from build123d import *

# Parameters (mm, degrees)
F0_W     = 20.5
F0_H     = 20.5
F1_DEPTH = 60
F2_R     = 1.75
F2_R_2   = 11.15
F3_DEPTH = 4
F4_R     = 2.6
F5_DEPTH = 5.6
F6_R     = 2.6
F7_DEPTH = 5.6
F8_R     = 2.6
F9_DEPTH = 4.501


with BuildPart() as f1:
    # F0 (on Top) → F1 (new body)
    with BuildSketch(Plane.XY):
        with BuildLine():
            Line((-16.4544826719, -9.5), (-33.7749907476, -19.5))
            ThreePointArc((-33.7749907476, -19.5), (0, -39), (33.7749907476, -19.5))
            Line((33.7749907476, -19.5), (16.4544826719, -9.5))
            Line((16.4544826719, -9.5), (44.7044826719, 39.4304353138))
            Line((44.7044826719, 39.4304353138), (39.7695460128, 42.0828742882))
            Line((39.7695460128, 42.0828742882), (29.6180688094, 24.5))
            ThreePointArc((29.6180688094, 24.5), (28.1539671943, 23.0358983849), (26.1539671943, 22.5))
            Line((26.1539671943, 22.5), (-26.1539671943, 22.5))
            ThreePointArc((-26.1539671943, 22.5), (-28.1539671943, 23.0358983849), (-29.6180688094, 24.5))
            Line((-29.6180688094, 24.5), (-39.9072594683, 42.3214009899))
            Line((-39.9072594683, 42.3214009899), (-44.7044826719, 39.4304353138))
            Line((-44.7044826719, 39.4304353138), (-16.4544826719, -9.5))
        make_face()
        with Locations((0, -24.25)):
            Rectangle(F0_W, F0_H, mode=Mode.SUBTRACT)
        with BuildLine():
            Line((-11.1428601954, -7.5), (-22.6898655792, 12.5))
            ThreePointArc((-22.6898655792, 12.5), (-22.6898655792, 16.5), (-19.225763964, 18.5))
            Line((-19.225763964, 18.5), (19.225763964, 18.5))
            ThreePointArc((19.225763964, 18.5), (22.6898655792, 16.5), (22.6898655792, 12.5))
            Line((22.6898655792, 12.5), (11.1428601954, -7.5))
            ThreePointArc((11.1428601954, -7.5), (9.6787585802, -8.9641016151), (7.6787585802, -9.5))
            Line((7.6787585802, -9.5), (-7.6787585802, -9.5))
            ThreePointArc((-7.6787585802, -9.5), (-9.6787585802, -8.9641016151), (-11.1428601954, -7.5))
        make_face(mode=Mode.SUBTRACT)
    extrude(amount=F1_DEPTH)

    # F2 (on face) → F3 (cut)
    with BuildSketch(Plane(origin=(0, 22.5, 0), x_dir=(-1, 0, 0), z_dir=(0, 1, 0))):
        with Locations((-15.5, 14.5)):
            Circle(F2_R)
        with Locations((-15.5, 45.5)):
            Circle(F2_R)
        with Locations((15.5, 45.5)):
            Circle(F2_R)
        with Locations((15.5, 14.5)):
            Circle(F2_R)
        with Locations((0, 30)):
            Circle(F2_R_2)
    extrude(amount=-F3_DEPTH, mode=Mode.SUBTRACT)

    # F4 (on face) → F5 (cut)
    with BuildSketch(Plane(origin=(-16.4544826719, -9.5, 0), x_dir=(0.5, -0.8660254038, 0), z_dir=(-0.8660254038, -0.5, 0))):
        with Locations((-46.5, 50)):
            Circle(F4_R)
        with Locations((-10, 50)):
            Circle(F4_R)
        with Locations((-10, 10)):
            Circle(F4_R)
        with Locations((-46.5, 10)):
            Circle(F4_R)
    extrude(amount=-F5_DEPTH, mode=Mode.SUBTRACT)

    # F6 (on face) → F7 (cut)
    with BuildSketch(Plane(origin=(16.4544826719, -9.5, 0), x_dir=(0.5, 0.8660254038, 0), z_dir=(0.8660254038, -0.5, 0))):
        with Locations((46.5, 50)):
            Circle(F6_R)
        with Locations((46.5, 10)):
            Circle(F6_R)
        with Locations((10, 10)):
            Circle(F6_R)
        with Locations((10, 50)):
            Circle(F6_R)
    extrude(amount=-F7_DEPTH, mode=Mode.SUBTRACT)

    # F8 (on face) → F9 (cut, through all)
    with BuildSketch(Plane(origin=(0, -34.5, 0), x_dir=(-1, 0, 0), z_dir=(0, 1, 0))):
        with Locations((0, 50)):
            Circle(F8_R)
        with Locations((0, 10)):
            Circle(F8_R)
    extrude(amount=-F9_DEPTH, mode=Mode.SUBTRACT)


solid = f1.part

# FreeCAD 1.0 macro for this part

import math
import FreeCAD as App
import Part
import Sketcher
from FreeCAD import Vector
Q = App.Units.Quantity


def add_polygon(sketch, points):
    """Adds a closed chain of lines whose ends are joined by coincident constraints."""
    first, n = sketch.GeometryCount, len(points)
    for a, b in zip(points, points[1:] + points[:1]):
        sketch.addGeometry(Part.LineSegment(App.Vector(*a, 0), App.Vector(*b, 0)), False)
    for i in range(n):
        sketch.addConstraint(Sketcher.Constraint("Coincident", first + i, 2, first + (i + 1) % n, 1))

doc = App.newDocument("Part")
params = doc.addObject("Spreadsheet::Sheet", "Params")
for row, (alias, value) in enumerate([
    ("sketch1_radius", "39 mm"),
    ("sketch1_radius2", "4 mm"),
    ("sketch1_length", "20 mm"),
    ("sketch1_width", "20.5 mm"),
    ("sketch1_length2", "56.5 mm"),
    ("pad1_length", "60 mm"),
    ("sketch2_diameter", "3.5 mm"),
    ("sketch2_diameter2", "22.3 mm"),
    ("pocket1_length", "4 mm"),
    ("sketch3_diameter", "5.2 mm"),
    ("pocket2_length", "5.6 mm"),
    ("sketch4_diameter", "5.2 mm"),
    ("pocket3_length", "5.6 mm"),
    ("sketch5_diameter", "5.2 mm"),
], start=1):
    params.set(f"A{row}", alias)
    params.set(f"B{row}", "=" + value)
    params.setAlias(f"B{row}", alias)

body = doc.addObject("PartDesign::Body", "Body")

sketch1 = doc.addObject("Sketcher::SketchObject", "Sketch")
body.addObject(sketch1)
sketch1.AttachmentSupport = (doc.XY_Plane, [""])
sketch1.MapMode = "FlatFace"
sketch1.addGeometry(Part.LineSegment(Vector(-16.5, -9.5, 0), Vector(-33.8, -19.5, 0)), False)
sketch1.addGeometry(Part.ArcOfCircle(Part.Circle(Vector(0, 0, 0), Vector(0, 0, 1), 39), math.radians(-150), math.radians(-30)), False)
sketch1.addGeometry(Part.LineSegment(Vector(33.8, -19.5, 0), Vector(16.5, -9.5, 0)), False)
sketch1.addGeometry(Part.LineSegment(Vector(16.5, -9.5, 0), Vector(44.7, 39.4, 0)), False)
sketch1.addGeometry(Part.LineSegment(Vector(44.7, 39.4, 0), Vector(39.8, 42.1, 0)), False)
sketch1.addGeometry(Part.LineSegment(Vector(39.8, 42.1, 0), Vector(29.6, 24.5, 0)), False)
sketch1.addGeometry(Part.ArcOfCircle(Part.Circle(Vector(26.2, 26.5, 0), Vector(0, 0, 1), 4), math.radians(-90), math.radians(-30)), False)
sketch1.addGeometry(Part.LineSegment(Vector(26.2, 22.5, 0), Vector(-26.2, 22.5, 0)), False)
sketch1.addGeometry(Part.ArcOfCircle(Part.Circle(Vector(-26.2, 26.5, 0), Vector(0, 0, 1), 4), math.radians(-150), math.radians(-90)), False)
sketch1.addGeometry(Part.LineSegment(Vector(-29.6, 24.5, 0), Vector(-39.9, 42.3, 0)), False)
sketch1.addGeometry(Part.LineSegment(Vector(-39.9, 42.3, 0), Vector(-44.7, 39.4, 0)), False)
sketch1.addGeometry(Part.LineSegment(Vector(-44.7, 39.4, 0), Vector(-16.5, -9.5, 0)), False)
add_polygon(sketch1, [(10.2, -34.5), (-10.2, -34.5), (-10.2, -14), (10.2, -14)])
sketch1.addGeometry(Part.ArcOfCircle(Part.Circle(Vector(-7.7, -5.5, 0), Vector(0, 0, 1), 4), math.radians(-150), math.radians(-90)), False)
sketch1.addGeometry(Part.LineSegment(Vector(-11.1, -7.5, 0), Vector(-22.7, 12.5, 0)), False)
sketch1.addGeometry(Part.ArcOfCircle(Part.Circle(Vector(-19.2, 14.5, 0), Vector(0, 0, 1), 4), math.radians(90), math.radians(210)), False)
sketch1.addGeometry(Part.LineSegment(Vector(-19.2, 18.5, 0), Vector(19.2, 18.5, 0)), False)
sketch1.addGeometry(Part.ArcOfCircle(Part.Circle(Vector(19.2, 14.5, 0), Vector(0, 0, 1), 4), math.radians(-30), math.radians(90)), False)
sketch1.addGeometry(Part.LineSegment(Vector(22.7, 12.5, 0), Vector(11.1, -7.5, 0)), False)
sketch1.addGeometry(Part.ArcOfCircle(Part.Circle(Vector(7.7, -5.5, 0), Vector(0, 0, 1), 4), math.radians(-90), math.radians(-30)), False)
sketch1.addGeometry(Part.LineSegment(Vector(7.7, -9.5, 0), Vector(-7.7, -9.5, 0)), False)
sketch1.addConstraint([
    Sketcher.Constraint("Coincident", 0, 2, 1, 1),
    Sketcher.Constraint("Coincident", 1, 2, 2, 1),
    Sketcher.Constraint("Coincident", 2, 2, 3, 1),
    Sketcher.Constraint("Coincident", 3, 2, 4, 1),
    Sketcher.Constraint("Coincident", 4, 2, 5, 1),
    Sketcher.Constraint("Tangent", 5, 2, 6, 2),
    Sketcher.Constraint("Tangent", 6, 1, 7, 1),
    Sketcher.Constraint("Tangent", 7, 2, 8, 2),
    Sketcher.Constraint("Tangent", 8, 1, 9, 1),
    Sketcher.Constraint("Coincident", 9, 2, 10, 1),
    Sketcher.Constraint("Coincident", 10, 2, 11, 1),
    Sketcher.Constraint("Coincident", 11, 2, 0, 1),
    Sketcher.Constraint("Tangent", 16, 1, 17, 1),
    Sketcher.Constraint("Tangent", 17, 2, 18, 2),
    Sketcher.Constraint("Tangent", 18, 1, 19, 1),
    Sketcher.Constraint("Tangent", 19, 2, 20, 2),
    Sketcher.Constraint("Tangent", 20, 1, 21, 1),
    Sketcher.Constraint("Tangent", 21, 2, 22, 2),
    Sketcher.Constraint("Tangent", 22, 1, 23, 1),
    Sketcher.Constraint("Tangent", 23, 2, 16, 2),
    Sketcher.Constraint("Horizontal", 7),
    Sketcher.Constraint("Horizontal", 12),
    Sketcher.Constraint("Vertical", 13),
    Sketcher.Constraint("Horizontal", 14),
    Sketcher.Constraint("Vertical", 15),
    Sketcher.Constraint("Horizontal", 19),
    Sketcher.Constraint("Horizontal", 23),
    Sketcher.Constraint("Coincident", 1, 3, -1, 1),
    Sketcher.Constraint("Equal", 6, 8),
    Sketcher.Constraint("Equal", 8, 16),
    Sketcher.Constraint("Equal", 16, 18),
    Sketcher.Constraint("Equal", 18, 20),
    Sketcher.Constraint("Equal", 20, 22),
    Sketcher.Constraint("Symmetric", 5, 2, 8, 1, -2),
    Sketcher.Constraint("Symmetric", 3, 2, 10, 2, -2),
    Sketcher.Constraint("Symmetric", 2, 2, 11, 2, -2),
    Sketcher.Constraint("Symmetric", 17, 2, 20, 1, -2),
    Sketcher.Constraint("Perpendicular", 2, 3),
    Sketcher.Constraint("Parallel", 3, 5),
    Sketcher.Constraint("Perpendicular", 0, 9),
    Sketcher.Constraint("Parallel", 11, 17),
    Sketcher.Constraint("Horizontal", 11, 2, 22, 1),
    Sketcher.Constraint("Equal", 14, 13),
    Sketcher.Constraint("Radius", 1, Q("39 mm")),
    Sketcher.Constraint("Radius", 6, Q("4 mm")),
    Sketcher.Constraint("Angle", 0, Q("-150 deg")),
    Sketcher.Constraint("Distance", 0, Q("20 mm")),
    Sketcher.Constraint("DistanceX", 12, 2, 12, 1, Q("20.5 mm")),
    Sketcher.Constraint("DistanceY", 13, 2, -1, 1, Q("14 mm")),
    Sketcher.Constraint("DistanceY", 16, 3, 8, 3, Q("32 mm")),
    Sketcher.Constraint("DistanceY", 18, 3, 8, 3, Q("12 mm")),
    Sketcher.Constraint("DistanceY", 12, 2, 11, 2, Q("25 mm")),
    Sketcher.Constraint("Distance", 3, Q("56.5 mm")),
    Sketcher.Constraint("DistanceX", 12, 2, -1, 1, Q("10.25 mm")),
    Sketcher.Constraint("DistanceY", -1, 1, 9, 2, Q("42.321401 mm")),
    Sketcher.Constraint("DistanceX", 9, 2, 16, 3, Q("32.228501 mm")),
    Sketcher.Constraint("Distance", 4, Q("5.602592 mm")),
    Sketcher.Constraint("DistanceX", 7, 2, 7, 1, Q("52.307934 mm")),
])
sketch1.setExpression("Constraints[47]", "Params.sketch1_radius")
sketch1.setExpression("Constraints[48]", "Params.sketch1_radius2")
sketch1.setExpression("Constraints[50]", "Params.sketch1_length")
sketch1.setExpression("Constraints[51]", "Params.sketch1_width")
sketch1.setExpression("Constraints[56]", "Params.sketch1_length2")
pad1 = doc.addObject("PartDesign::Pad", "Pad")
body.addObject(pad1)
pad1.Profile = sketch1
pad1.setExpression("Length", "Params.pad1_length")

sketch2 = doc.addObject("Sketcher::SketchObject", "Sketch001")
body.addObject(sketch2)
sketch2.AttachmentSupport = (doc.XZ_Plane, [""])
sketch2.MapMode = "FlatFace"
sketch2.AttachmentOffset = App.Placement(Vector(0, 0, -22.5), App.Rotation())
sketch2.addGeometry([
    Part.Circle(Vector(15.5, 14.5, 0), Vector(0, 0, 1), 1.8),
    Part.Circle(Vector(15.5, 45.5, 0), Vector(0, 0, 1), 1.8),
    Part.Circle(Vector(-15.5, 45.5, 0), Vector(0, 0, 1), 1.8),
    Part.Circle(Vector(-15.5, 14.5, 0), Vector(0, 0, 1), 1.8),
    Part.Circle(Vector(0, 30, 0), Vector(0, 0, 1), 11.2),
], False)
sketch2.addConstraint([
    Sketcher.Constraint("Equal", 0, 1),
    Sketcher.Constraint("Equal", 1, 2),
    Sketcher.Constraint("Equal", 2, 3),
    Sketcher.Constraint("Symmetric", 1, 3, 2, 3, -2),
    Sketcher.Constraint("Symmetric", 0, 3, 3, 3, -2),
    Sketcher.Constraint("PointOnObject", 4, 3, -2),
    Sketcher.Constraint("Vertical", 0, 3, 1, 3),
    Sketcher.Constraint("Diameter", 0, Q("3.5 mm")),
    Sketcher.Constraint("Diameter", 4, Q("22.3 mm")),
    Sketcher.Constraint("DistanceY", -1, 1, 4, 3, Q("30 mm")),
    Sketcher.Constraint("DistanceY", 0, 3, 1, 3, Q("31 mm")),
    Sketcher.Constraint("DistanceX", 2, 3, 1, 3, Q("31 mm")),
    Sketcher.Constraint("DistanceY", -1, 1, 0, 3, Q("14.5 mm")),
])
sketch2.setExpression("Constraints[7]", "Params.sketch2_diameter")
sketch2.setExpression("Constraints[8]", "Params.sketch2_diameter2")
pocket1 = doc.addObject("PartDesign::Pocket", "Pocket")
body.addObject(pocket1)
pocket1.Profile = sketch2
pocket1.setExpression("Length", "Params.pocket1_length")
pocket1.Reversed = True

sketch3 = doc.addObject("Sketcher::SketchObject", "Sketch002")
body.addObject(sketch3)
sketch3.Placement = App.Placement(Vector(-16.454483, -9.5, 0), App.Rotation(Vector(0.5, -0.866025404, 0), Vector(0, 0, 1), Vector(-0.866025404, -0.5, 0), "ZXY"))
sketch3.addGeometry([
    Part.Circle(Vector(-46.5, 50, 0), Vector(0, 0, 1), 2.6),
    Part.Circle(Vector(-10, 50, 0), Vector(0, 0, 1), 2.6),
    Part.Circle(Vector(-10, 10, 0), Vector(0, 0, 1), 2.6),
    Part.Circle(Vector(-46.5, 10, 0), Vector(0, 0, 1), 2.6),
], False)
sketch3.addConstraint([
    Sketcher.Constraint("Equal", 0, 1),
    Sketcher.Constraint("Equal", 1, 2),
    Sketcher.Constraint("Equal", 2, 3),
    Sketcher.Constraint("Horizontal", 0, 3, 1, 3),
    Sketcher.Constraint("Horizontal", 2, 3, 3, 3),
    Sketcher.Constraint("Vertical", 1, 3, 2, 3),
    Sketcher.Constraint("Vertical", 0, 3, 3, 3),
    Sketcher.Constraint("Diameter", 0, Q("5.2 mm")),
    Sketcher.Constraint("DistanceY", -1, 1, 0, 3, Q("50 mm")),
    Sketcher.Constraint("DistanceX", 1, 3, -1, 1, Q("10 mm")),
    Sketcher.Constraint("DistanceY", -1, 1, 2, 3, Q("10 mm")),
    Sketcher.Constraint("DistanceX", 0, 3, -1, 1, Q("46.5 mm")),
])
sketch3.setExpression("Constraints[7]", "Params.sketch3_diameter")
pocket2 = doc.addObject("PartDesign::Pocket", "Pocket001")
body.addObject(pocket2)
pocket2.Profile = sketch3
pocket2.setExpression("Length", "Params.pocket2_length")

sketch4 = doc.addObject("Sketcher::SketchObject", "Sketch003")
body.addObject(sketch4)
sketch4.Placement = App.Placement(Vector(16.454483, -9.5, 0), App.Rotation(Vector(0.5, 0.866025404, 0), Vector(0, 0, 1), Vector(0.866025404, -0.5, 0), "ZXY"))
sketch4.addGeometry([
    Part.Circle(Vector(46.5, 50, 0), Vector(0, 0, 1), 2.6),
    Part.Circle(Vector(46.5, 10, 0), Vector(0, 0, 1), 2.6),
    Part.Circle(Vector(10, 10, 0), Vector(0, 0, 1), 2.6),
    Part.Circle(Vector(10, 50, 0), Vector(0, 0, 1), 2.6),
], False)
sketch4.addConstraint([
    Sketcher.Constraint("Equal", 0, 1),
    Sketcher.Constraint("Equal", 1, 2),
    Sketcher.Constraint("Equal", 2, 3),
    Sketcher.Constraint("Horizontal", 1, 3, 2, 3),
    Sketcher.Constraint("Horizontal", 0, 3, 3, 3),
    Sketcher.Constraint("Vertical", 0, 3, 1, 3),
    Sketcher.Constraint("Vertical", 2, 3, 3, 3),
    Sketcher.Constraint("Diameter", 0, Q("5.2 mm")),
    Sketcher.Constraint("DistanceY", -1, 1, 0, 3, Q("50 mm")),
    Sketcher.Constraint("DistanceY", -1, 1, 1, 3, Q("10 mm")),
    Sketcher.Constraint("DistanceX", -1, 1, 2, 3, Q("10 mm")),
    Sketcher.Constraint("DistanceX", -1, 1, 0, 3, Q("46.5 mm")),
])
sketch4.setExpression("Constraints[7]", "Params.sketch4_diameter")
pocket3 = doc.addObject("PartDesign::Pocket", "Pocket002")
body.addObject(pocket3)
pocket3.Profile = sketch4
pocket3.setExpression("Length", "Params.pocket3_length")

sketch5 = doc.addObject("Sketcher::SketchObject", "Sketch004")
body.addObject(sketch5)
sketch5.AttachmentSupport = (doc.XZ_Plane, [""])
sketch5.MapMode = "FlatFace"
sketch5.AttachmentOffset = App.Placement(Vector(0, 0, 34.5), App.Rotation())
sketch5.addGeometry([
    Part.Circle(Vector(0, 50, 0), Vector(0, 0, 1), 2.6),
    Part.Circle(Vector(0, 10, 0), Vector(0, 0, 1), 2.6),
], False)
sketch5.addConstraint([
    Sketcher.Constraint("Equal", 0, 1),
    Sketcher.Constraint("PointOnObject", 0, 3, -2),
    Sketcher.Constraint("PointOnObject", 1, 3, -2),
    Sketcher.Constraint("Diameter", 0, Q("5.2 mm")),
    Sketcher.Constraint("DistanceY", -1, 1, 0, 3, Q("50 mm")),
    Sketcher.Constraint("DistanceY", -1, 1, 1, 3, Q("10 mm")),
])
sketch5.setExpression("Constraints[3]", "Params.sketch5_diameter")
pocket4 = doc.addObject("PartDesign::Pocket", "Pocket003")
body.addObject(pocket4)
pocket4.Profile = sketch5
pocket4.Type = "ThroughAll"
pocket4.Reversed = True

doc.recompute()
